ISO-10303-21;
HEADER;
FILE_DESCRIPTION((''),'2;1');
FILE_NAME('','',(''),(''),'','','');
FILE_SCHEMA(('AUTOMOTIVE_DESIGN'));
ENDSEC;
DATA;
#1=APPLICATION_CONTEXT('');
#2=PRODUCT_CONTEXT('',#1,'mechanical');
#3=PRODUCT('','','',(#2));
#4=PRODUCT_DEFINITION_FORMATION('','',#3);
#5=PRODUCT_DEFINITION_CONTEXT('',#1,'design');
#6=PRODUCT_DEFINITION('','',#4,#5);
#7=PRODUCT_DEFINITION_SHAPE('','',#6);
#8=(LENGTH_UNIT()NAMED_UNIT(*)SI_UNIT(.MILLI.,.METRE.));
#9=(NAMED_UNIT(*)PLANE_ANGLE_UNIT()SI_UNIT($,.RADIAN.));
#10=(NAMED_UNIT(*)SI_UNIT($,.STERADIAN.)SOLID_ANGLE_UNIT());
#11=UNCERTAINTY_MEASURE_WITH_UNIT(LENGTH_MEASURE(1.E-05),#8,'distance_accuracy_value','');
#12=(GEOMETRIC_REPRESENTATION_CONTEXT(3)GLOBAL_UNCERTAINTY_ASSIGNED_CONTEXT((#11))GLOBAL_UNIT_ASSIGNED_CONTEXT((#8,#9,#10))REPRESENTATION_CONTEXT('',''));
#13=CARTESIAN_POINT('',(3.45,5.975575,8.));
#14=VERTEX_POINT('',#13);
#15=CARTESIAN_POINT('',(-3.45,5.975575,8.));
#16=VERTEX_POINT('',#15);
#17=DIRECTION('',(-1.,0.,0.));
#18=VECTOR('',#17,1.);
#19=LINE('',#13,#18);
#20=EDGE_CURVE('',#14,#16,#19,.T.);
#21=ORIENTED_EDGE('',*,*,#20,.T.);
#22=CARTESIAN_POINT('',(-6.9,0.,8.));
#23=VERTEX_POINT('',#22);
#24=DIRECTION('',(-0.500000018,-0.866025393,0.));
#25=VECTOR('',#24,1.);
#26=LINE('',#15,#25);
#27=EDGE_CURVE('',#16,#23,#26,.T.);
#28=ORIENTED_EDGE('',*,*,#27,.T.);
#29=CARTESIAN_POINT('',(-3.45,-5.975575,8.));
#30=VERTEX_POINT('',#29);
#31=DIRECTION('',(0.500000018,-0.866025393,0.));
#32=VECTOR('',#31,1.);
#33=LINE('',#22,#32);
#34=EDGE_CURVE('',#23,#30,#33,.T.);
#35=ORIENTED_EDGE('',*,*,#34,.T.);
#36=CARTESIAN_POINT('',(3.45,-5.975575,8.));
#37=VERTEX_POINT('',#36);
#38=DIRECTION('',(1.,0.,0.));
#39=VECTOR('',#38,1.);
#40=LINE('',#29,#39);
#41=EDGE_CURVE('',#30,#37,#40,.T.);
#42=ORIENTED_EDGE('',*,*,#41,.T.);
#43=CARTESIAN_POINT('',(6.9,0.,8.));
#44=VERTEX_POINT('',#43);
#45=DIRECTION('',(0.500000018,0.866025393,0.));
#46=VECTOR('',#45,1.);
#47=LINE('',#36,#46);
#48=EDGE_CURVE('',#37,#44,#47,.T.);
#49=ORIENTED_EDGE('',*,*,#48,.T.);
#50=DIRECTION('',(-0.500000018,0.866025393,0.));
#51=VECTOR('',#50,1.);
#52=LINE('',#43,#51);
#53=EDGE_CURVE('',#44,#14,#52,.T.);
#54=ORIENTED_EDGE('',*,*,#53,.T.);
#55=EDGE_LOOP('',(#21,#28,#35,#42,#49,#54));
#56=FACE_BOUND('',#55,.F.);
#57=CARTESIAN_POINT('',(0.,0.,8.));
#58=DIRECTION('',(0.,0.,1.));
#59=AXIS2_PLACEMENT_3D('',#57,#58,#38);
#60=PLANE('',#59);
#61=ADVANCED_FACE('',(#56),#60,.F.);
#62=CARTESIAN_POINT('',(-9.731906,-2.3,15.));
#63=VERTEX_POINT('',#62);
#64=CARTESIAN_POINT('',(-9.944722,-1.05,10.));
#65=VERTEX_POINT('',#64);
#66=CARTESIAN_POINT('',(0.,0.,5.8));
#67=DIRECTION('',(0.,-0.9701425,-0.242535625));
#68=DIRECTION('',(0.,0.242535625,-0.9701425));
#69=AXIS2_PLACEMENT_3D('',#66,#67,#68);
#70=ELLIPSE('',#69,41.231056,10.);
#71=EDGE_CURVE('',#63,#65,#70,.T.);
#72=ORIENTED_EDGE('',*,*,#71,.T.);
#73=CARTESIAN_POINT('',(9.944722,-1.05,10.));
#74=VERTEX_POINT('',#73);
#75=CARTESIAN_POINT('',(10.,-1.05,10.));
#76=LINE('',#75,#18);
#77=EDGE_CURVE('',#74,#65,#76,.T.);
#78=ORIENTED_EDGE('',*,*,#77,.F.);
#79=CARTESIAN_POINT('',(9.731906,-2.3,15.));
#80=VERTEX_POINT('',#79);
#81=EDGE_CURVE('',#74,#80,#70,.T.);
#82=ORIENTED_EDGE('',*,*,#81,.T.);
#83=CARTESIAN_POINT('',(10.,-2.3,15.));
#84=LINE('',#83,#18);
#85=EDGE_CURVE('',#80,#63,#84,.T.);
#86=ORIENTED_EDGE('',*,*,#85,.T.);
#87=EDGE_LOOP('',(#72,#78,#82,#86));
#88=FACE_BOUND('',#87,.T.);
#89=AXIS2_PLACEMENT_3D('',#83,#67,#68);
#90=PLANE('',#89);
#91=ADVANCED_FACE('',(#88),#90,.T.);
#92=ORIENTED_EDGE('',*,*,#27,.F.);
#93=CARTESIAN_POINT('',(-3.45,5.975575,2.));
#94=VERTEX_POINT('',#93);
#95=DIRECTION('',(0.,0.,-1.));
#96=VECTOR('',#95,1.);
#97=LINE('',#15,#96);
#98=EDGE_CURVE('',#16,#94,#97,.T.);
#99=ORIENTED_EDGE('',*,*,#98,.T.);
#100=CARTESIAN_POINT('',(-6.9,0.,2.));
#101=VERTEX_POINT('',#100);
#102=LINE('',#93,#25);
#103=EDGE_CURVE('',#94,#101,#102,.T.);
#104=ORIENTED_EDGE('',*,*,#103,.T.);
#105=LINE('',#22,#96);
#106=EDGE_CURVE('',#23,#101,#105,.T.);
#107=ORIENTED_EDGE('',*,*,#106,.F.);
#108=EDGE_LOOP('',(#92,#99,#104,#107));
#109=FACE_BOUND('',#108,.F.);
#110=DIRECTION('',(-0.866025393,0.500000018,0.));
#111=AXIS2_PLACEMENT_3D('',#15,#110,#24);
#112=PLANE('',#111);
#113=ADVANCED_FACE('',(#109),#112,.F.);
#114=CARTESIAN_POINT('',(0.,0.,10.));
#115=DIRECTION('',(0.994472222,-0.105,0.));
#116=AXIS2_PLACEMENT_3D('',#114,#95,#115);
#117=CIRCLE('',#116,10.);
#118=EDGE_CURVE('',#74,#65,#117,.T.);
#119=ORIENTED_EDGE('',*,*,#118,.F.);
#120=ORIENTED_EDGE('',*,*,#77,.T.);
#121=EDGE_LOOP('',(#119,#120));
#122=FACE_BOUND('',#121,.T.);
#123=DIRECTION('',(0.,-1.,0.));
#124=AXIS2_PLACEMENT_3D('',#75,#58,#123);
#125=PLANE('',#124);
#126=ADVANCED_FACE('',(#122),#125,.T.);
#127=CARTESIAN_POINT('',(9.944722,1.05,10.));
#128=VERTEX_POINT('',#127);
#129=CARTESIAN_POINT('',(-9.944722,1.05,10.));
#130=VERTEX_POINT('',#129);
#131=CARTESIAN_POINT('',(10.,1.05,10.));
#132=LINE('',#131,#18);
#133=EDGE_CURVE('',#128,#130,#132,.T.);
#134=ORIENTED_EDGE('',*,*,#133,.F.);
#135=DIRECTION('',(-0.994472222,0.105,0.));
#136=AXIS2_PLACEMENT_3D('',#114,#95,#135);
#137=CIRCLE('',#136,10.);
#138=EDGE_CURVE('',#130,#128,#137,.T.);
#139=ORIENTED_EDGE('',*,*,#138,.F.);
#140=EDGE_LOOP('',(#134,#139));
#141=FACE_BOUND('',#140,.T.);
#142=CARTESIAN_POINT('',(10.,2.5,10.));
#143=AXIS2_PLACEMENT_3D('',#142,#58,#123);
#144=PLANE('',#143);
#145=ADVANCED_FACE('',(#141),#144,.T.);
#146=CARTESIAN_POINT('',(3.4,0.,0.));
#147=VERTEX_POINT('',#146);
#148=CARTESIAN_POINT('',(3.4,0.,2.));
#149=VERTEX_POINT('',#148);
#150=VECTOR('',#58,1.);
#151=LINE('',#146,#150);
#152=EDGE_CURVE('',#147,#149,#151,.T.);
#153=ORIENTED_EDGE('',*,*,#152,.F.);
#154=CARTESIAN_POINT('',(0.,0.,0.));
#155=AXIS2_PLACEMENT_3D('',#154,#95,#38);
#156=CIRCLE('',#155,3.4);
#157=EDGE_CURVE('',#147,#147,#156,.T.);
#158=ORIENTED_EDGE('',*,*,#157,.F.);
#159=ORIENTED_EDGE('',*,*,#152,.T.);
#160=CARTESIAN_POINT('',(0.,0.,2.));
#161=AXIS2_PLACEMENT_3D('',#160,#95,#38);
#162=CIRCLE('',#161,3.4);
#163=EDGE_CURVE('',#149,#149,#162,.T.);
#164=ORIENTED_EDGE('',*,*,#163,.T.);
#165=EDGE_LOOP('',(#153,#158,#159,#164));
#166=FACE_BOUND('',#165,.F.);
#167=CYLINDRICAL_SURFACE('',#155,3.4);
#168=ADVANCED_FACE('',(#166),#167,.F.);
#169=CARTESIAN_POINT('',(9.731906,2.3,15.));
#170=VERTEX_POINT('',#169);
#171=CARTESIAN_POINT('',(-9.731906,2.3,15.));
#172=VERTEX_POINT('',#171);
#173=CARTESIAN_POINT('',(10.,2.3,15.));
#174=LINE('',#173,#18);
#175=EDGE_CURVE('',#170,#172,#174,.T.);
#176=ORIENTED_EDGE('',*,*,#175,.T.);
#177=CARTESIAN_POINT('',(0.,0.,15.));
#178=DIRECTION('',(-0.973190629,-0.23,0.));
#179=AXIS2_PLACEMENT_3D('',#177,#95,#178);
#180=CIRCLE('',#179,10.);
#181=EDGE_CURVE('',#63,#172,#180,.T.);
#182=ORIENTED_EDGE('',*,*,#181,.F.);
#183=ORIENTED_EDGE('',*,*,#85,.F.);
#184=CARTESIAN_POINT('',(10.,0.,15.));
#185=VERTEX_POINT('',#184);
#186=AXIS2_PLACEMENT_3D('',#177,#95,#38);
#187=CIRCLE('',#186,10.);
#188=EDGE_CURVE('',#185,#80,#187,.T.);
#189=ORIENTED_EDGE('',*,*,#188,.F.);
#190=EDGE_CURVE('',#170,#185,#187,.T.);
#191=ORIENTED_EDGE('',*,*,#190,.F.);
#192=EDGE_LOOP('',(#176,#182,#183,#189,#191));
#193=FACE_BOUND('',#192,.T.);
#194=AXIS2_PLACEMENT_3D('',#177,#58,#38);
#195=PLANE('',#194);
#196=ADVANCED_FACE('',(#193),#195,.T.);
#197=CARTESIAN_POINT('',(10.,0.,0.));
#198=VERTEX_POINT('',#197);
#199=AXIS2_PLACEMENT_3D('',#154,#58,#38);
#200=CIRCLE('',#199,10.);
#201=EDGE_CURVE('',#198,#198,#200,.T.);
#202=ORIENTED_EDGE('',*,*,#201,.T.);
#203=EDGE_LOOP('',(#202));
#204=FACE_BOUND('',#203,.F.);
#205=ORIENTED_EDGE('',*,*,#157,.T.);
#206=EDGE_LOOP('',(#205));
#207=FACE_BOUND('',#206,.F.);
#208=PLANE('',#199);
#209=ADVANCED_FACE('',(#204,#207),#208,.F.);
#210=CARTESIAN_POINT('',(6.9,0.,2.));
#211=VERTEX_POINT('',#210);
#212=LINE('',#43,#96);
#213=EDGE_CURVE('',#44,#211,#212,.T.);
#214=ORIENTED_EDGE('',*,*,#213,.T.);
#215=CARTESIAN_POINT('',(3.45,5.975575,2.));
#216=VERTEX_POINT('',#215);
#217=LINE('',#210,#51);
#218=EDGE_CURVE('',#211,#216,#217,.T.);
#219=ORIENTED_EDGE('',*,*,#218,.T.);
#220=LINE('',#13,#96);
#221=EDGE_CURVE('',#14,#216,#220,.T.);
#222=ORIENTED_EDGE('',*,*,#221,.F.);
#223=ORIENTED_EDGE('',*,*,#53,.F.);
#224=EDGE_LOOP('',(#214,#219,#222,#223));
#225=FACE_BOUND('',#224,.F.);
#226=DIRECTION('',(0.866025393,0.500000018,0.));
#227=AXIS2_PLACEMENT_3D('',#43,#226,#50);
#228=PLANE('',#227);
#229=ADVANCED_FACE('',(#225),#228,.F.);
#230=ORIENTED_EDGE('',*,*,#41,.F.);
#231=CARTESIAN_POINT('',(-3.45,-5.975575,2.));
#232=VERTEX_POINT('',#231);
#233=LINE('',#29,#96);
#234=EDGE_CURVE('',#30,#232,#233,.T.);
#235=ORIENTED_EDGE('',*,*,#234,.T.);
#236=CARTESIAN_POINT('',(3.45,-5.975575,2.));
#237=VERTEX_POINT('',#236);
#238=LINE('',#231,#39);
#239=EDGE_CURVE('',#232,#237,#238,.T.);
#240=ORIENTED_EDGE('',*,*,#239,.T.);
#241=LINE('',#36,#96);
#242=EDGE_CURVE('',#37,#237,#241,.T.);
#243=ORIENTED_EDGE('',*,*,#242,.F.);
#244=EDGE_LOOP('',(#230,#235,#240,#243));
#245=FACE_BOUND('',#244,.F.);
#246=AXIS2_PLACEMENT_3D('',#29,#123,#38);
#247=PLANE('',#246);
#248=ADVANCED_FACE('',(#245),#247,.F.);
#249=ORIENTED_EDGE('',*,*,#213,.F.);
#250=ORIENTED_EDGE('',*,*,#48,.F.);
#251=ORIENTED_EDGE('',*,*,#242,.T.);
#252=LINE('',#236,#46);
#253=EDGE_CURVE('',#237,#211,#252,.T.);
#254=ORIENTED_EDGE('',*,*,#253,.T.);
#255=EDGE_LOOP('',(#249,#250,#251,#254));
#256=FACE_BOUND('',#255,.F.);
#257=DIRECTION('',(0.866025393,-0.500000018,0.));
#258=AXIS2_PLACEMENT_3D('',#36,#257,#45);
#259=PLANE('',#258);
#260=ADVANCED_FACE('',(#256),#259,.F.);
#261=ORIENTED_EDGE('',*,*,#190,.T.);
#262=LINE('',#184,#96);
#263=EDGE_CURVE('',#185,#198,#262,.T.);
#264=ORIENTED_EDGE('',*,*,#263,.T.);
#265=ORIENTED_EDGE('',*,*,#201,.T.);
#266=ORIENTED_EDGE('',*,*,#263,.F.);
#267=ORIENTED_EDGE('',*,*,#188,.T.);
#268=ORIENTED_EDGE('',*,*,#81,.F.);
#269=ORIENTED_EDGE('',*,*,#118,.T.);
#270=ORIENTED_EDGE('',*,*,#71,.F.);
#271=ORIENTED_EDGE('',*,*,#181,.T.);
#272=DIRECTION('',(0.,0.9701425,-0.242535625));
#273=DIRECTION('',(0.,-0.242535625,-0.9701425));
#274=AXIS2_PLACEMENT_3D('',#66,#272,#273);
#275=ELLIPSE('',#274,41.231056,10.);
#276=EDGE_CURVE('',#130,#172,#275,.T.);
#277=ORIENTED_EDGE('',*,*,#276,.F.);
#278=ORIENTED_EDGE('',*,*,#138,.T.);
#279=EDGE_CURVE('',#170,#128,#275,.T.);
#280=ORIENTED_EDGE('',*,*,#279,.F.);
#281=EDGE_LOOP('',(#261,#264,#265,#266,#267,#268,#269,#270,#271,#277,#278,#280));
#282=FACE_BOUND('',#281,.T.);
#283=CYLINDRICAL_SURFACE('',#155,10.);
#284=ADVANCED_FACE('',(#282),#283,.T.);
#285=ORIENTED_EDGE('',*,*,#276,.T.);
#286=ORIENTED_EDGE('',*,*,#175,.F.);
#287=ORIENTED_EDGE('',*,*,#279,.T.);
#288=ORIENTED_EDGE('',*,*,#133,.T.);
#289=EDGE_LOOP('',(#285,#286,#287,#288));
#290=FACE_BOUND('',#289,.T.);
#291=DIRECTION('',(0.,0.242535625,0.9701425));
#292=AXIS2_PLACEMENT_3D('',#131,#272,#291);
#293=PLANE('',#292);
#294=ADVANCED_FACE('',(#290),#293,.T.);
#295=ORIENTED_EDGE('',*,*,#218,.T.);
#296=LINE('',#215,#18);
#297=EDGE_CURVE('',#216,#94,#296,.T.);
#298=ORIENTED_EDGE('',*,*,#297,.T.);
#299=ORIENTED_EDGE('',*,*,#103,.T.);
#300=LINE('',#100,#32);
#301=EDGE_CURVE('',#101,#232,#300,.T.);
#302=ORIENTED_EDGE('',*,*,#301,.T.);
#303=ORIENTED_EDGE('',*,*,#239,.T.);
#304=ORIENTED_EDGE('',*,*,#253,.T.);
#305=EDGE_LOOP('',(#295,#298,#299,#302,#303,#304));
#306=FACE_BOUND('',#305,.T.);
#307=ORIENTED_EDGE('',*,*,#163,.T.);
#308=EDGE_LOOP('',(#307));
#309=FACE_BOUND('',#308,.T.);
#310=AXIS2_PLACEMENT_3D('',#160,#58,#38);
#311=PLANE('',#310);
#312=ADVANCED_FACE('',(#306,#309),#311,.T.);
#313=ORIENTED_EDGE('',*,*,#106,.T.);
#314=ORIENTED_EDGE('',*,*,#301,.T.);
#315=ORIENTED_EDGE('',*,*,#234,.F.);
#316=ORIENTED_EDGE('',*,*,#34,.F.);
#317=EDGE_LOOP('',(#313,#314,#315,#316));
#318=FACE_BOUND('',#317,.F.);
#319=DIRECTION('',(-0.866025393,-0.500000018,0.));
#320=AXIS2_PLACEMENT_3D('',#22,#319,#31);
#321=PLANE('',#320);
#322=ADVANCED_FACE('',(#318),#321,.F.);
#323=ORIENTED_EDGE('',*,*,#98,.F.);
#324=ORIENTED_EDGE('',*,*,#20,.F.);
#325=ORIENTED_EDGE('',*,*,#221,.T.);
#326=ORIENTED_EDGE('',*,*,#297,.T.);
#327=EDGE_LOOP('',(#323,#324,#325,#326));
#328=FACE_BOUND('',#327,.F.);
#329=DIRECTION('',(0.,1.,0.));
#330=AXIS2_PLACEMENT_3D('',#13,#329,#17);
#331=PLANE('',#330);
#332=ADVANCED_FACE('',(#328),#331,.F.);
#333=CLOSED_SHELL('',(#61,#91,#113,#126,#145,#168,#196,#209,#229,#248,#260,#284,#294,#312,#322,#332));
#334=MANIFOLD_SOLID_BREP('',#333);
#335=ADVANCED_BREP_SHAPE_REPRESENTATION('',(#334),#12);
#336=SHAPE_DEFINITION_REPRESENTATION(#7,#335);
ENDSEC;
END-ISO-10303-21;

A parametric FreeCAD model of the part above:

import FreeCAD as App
import Part
import Sketcher
Q = App.Units.Quantity


def add_polygon(sketch, points):
    """Adds a closed chain of lines whose ends are joined by coincident constraints."""
    first, n = sketch.GeometryCount, len(points)
    for a, b in zip(points, points[1:] + points[:1]):
        sketch.addGeometry(Part.LineSegment(App.Vector(*a, 0), App.Vector(*b, 0)), False)
    for i in range(n):
        sketch.addConstraint(Sketcher.Constraint("Coincident", first + i, 2, first + (i + 1) % n, 1))

doc = App.newDocument("Part")
body = doc.addObject("PartDesign::Body", "Body")

sketch1 = doc.addObject("Sketcher::SketchObject", "Sketch")
body.addObject(sketch1)
sketch1.AttachmentSupport = (doc.XY_Plane, [""])
sketch1.MapMode = "FlatFace"
sketch1.AttachmentOffset = App.Placement(App.Vector(0, 0, 10), App.Rotation())
add_polygon(sketch1, [(-10, 2), (-10, -2), (10, -2), (10, 2)])
sketch1.addConstraint(Sketcher.Constraint("Vertical", 0))
sketch1.addConstraint(Sketcher.Constraint("Horizontal", 1))
sketch1.addConstraint(Sketcher.Constraint("Vertical", 2))
sketch1.addConstraint(Sketcher.Constraint("Horizontal", 3))
sketch1.addConstraint(Sketcher.Constraint("Symmetric", 0, 2, 2, 2, -1, 1))
sketch1.addConstraint(Sketcher.Constraint("DistanceX", 1, 1, 1, 2, Q("20 mm")))
sketch1.addConstraint(Sketcher.Constraint("DistanceY", 0, 2, 0, 1, Q("5 mm")))
pad1 = doc.addObject("PartDesign::Pad", "Pad")
body.addObject(pad1)
pad1.Profile = sketch1
pad1.Length = 5
body2 = doc.addObject("PartDesign::Body", "Body001")

sketch2 = doc.addObject("Sketcher::SketchObject", "Sketch001")
body2.addObject(sketch2)
sketch2.AttachmentSupport = (doc.getObject("XY_Plane001"), [""])
sketch2.MapMode = "FlatFace"
sketch2.addGeometry(Part.Circle(App.Vector(0, 0, 0), App.Vector(0, 0, 1), 10), False)
sketch2.addConstraint(Sketcher.Constraint("Coincident", 0, 3, -1, 1))
sketch2.addConstraint(Sketcher.Constraint("Diameter", 0, Q("20 mm")))
pad2 = doc.addObject("PartDesign::Pad", "Pad001")
body2.addObject(pad2)
pad2.Profile = sketch2
pad2.Length = 8

sketch3 = doc.addObject("Sketcher::SketchObject", "Sketch002")
body2.addObject(sketch3)
sketch3.AttachmentSupport = (doc.getObject("XY_Plane001"), [""])
sketch3.MapMode = "FlatFace"
sketch3.AttachmentOffset = App.Placement(App.Vector(0, 0, 8), App.Rotation())
add_polygon(sketch3, [(3, -6), (7, 0), (3, 6), (-3, 6), (-7, 0), (-3, -6)])
sketch3.addConstraint(Sketcher.Constraint("Horizontal", 2))
sketch3.addConstraint(Sketcher.Constraint("Horizontal", 5))
sketch3.addConstraint(Sketcher.Constraint("Symmetric", 0, 2, 3, 2, -1, 1))
sketch3.addConstraint(Sketcher.Constraint("Symmetric", 1, 2, 4, 2, -1, 1))
sketch3.addConstraint(Sketcher.Constraint("PointOnObject", 0, 2, -1))
sketch3.addConstraint(Sketcher.Constraint("Parallel", 0, 3))
sketch3.addConstraint(Sketcher.Constraint("Vertical", 2, 2, 4, 2))
sketch3.addConstraint(Sketcher.Constraint("Angle", 0, Q("59.999999 deg")))
sketch3.addConstraint(Sketcher.Constraint("DistanceX", 2, 2, 2, 1, Q("6.9 mm")))
sketch3.addConstraint(Sketcher.Constraint("Distance", 0, Q("6.9 mm")))
pocket1 = doc.addObject("PartDesign::Pocket", "Pocket")
body2.addObject(pocket1)
pocket1.Profile = sketch3
pocket1.Length = 6

sketch4 = doc.addObject("Sketcher::SketchObject", "Sketch003")
body2.addObject(sketch4)
sketch4.AttachmentSupport = (doc.getObject("XY_Plane001"), [""])
sketch4.MapMode = "FlatFace"
sketch4.AttachmentOffset = App.Placement(App.Vector(0, 0, 8), App.Rotation())
sketch4.addGeometry(Part.Circle(App.Vector(0, 0, 0), App.Vector(0, 0, 1), 10), False)
sketch4.addConstraint(Sketcher.Constraint("Coincident", 0, 3, -1, 1))
sketch4.addConstraint(Sketcher.Constraint("Diameter", 0, Q("20 mm")))
pad3 = doc.addObject("PartDesign::Pad", "Pad002")
body2.addObject(pad3)
pad3.Profile = sketch4
pad3.Length = 2

sketch5 = doc.addObject("Sketcher::SketchObject", "Sketch004")
body2.addObject(sketch5)
sketch5.AttachmentSupport = (doc.getObject("XY_Plane001"), [""])
sketch5.MapMode = "FlatFace"
sketch5.addGeometry(Part.Circle(App.Vector(0, 0, 0), App.Vector(0, 0, 1), 3.4), False)
sketch5.addConstraint(Sketcher.Constraint("Coincident", 0, 3, -1, 1))
sketch5.addConstraint(Sketcher.Constraint("Diameter", 0, Q("6.8 mm")))
pocket2 = doc.addObject("PartDesign::Pocket", "Pocket001")
body2.addObject(pocket2)
pocket2.Profile = sketch5
pocket2.Length = 2
pocket2.Reversed = True
doc.recompute()

boolean = doc.addObject("PartDesign::Boolean", "Boolean")
body2.addObject(boolean)
boolean.Type = "Fuse"
boolean.addObjects([body])

sketch6 = doc.addObject("Sketcher::SketchObject", "Sketch005")
body2.addObject(sketch6)
sketch6.AttachmentSupport = (doc.getObject("YZ_Plane001"), [""])
sketch6.MapMode = "FlatFace"
sketch6.AttachmentOffset = App.Placement(App.Vector(0, 0, 10), App.Rotation())
add_polygon(sketch6, [(2.5, 15), (2.3, 15), (1.05, 10), (2.5, 10)])
add_polygon(sketch6, [(-2.3, 15), (-2.5, 15), (-2.5, 10), (-1.05, 10)])
sketch6.addConstraint(Sketcher.Constraint("Horizontal", 0))
sketch6.addConstraint(Sketcher.Constraint("Horizontal", 2))
sketch6.addConstraint(Sketcher.Constraint("Vertical", 3))
sketch6.addConstraint(Sketcher.Constraint("Horizontal", 4))
sketch6.addConstraint(Sketcher.Constraint("Vertical", 5))
sketch6.addConstraint(Sketcher.Constraint("Horizontal", 6))
sketch6.addConstraint(Sketcher.Constraint("Symmetric", 3, 2, 4, 2, -2))
sketch6.addConstraint(Sketcher.Constraint("Symmetric", 1, 2, 6, 2, -2))
sketch6.addConstraint(Sketcher.Constraint("Equal", 0, 4))
sketch6.addConstraint(Sketcher.Constraint("DistanceY", 3, 1, 3, 2, Q("5 mm")))
sketch6.addConstraint(Sketcher.Constraint("DistanceX", 0, 2, 0, 1, Q("0.2 mm")))
sketch6.addConstraint(Sketcher.Constraint("DistanceY", -1, 1, 0, 2, Q("15 mm")))
sketch6.addConstraint(Sketcher.Constraint("DistanceX", 4, 2, 3, 2, Q("5 mm")))
sketch6.addConstraint(Sketcher.Constraint("DistanceX", 2, 1, 2, 2, Q("1.45 mm")))
pocket3 = doc.addObject("PartDesign::Pocket", "Pocket002")
body2.addObject(pocket3)
pocket3.Profile = sketch6
pocket3.Type = "ThroughAll"

sketch7 = doc.addObject("Sketcher::SketchObject", "Sketch006")
body2.addObject(sketch7)
sketch7.AttachmentSupport = (doc.getObject("XY_Plane001"), [""])
sketch7.MapMode = "FlatFace"
sketch7.addGeometry(Part.Circle(App.Vector(0, 0, 0), App.Vector(0, 0, 1), 15), False)
sketch7.addGeometry(Part.Circle(App.Vector(0, 0, 0), App.Vector(0, 0, 1), 10), False)
sketch7.addConstraint(Sketcher.Constraint("Coincident", 0, 3, -1, 1))
sketch7.addConstraint(Sketcher.Constraint("Coincident", 1, 3, -1, 1))
sketch7.addConstraint(Sketcher.Constraint("Diameter", 0, Q("30 mm")))
sketch7.addConstraint(Sketcher.Constraint("Diameter", 1, Q("20 mm")))
pocket4 = doc.addObject("PartDesign::Pocket", "Pocket003")
body2.addObject(pocket4)
pocket4.Profile = sketch7
pocket4.Type = "ThroughAll"
pocket4.Reversed = True

doc.recompute()
